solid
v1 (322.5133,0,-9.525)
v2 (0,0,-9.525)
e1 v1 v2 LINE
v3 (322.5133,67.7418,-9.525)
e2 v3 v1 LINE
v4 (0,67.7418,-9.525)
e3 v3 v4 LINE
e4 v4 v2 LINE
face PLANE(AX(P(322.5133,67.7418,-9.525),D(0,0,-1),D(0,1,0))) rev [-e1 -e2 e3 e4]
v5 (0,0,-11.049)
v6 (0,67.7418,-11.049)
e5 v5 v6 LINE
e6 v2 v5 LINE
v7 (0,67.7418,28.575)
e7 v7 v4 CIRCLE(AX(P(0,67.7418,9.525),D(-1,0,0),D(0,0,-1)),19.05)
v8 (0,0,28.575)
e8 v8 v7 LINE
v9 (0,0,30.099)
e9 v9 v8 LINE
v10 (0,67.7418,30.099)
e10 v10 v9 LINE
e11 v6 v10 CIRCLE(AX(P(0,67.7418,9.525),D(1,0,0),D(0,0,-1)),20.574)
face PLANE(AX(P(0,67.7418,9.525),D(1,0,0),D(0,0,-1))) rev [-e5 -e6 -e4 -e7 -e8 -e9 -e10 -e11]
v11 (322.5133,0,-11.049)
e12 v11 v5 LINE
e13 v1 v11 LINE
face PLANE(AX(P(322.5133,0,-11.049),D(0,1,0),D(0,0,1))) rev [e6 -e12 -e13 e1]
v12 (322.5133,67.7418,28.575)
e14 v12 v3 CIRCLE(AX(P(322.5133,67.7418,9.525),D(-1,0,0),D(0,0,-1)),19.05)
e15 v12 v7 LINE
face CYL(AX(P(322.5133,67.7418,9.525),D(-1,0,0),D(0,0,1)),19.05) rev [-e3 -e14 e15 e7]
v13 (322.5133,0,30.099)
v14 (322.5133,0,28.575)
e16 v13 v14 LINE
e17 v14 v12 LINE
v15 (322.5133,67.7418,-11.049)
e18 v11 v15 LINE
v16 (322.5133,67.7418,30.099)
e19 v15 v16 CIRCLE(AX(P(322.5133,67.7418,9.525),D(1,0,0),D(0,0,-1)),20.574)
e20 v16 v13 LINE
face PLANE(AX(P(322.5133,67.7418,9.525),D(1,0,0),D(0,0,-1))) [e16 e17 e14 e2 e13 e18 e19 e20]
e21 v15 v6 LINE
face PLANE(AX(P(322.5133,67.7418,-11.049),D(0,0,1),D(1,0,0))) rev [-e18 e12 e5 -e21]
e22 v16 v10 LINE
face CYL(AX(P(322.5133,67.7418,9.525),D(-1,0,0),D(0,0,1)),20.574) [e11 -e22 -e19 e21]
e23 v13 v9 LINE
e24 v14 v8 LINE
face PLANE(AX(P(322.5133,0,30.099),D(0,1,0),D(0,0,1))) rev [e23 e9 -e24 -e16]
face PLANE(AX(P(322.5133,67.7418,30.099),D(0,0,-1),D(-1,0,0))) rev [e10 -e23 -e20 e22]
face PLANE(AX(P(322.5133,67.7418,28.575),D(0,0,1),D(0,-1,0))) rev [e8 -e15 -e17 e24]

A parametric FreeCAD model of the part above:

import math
import FreeCAD as App
import Part
import Sketcher
from FreeCAD import Vector
Q = App.Units.Quantity

doc = App.newDocument("Part")
body = doc.addObject("PartDesign::Body", "Body")

# Sketch on YZ plane
sketch1 = body.newObject("Sketcher::SketchObject", "Sketch")
sketch1.AttachmentSupport = (doc.getObject("YZ_Plane"), [""])
sketch1.MapMode = "FlatFace"
sketch1.addGeometry(Part.LineSegment(Vector(67.7, 30.1, 0), Vector(0, 30.1, 0)), False)
sketch1.addGeometry(Part.LineSegment(Vector(0, 30.1, 0), Vector(0, 28.6, 0)), False)
sketch1.addGeometry(Part.LineSegment(Vector(0, 28.6, 0), Vector(67.7, 28.6, 0)), False)
sketch1.addGeometry(Part.ArcOfCircle(Part.Circle(Vector(67.7, 9.5, 0), Vector(0, 0, 1), 19.1), math.radians(-90), math.radians(90)), False)
sketch1.addGeometry(Part.LineSegment(Vector(67.7, -9.5, 0), Vector(0, -9.5, 0)), False)
sketch1.addGeometry(Part.LineSegment(Vector(0, -9.5, 0), Vector(0, -11, 0)), False)
sketch1.addGeometry(Part.LineSegment(Vector(0, -11, 0), Vector(67.7, -11, 0)), False)
sketch1.addGeometry(Part.ArcOfCircle(Part.Circle(Vector(67.7, 9.5, 0), Vector(0, 0, 1), 20.6), math.radians(-90), math.radians(90)), False)
sketch1.addConstraint(Sketcher.Constraint("Coincident", 0, 2, 1, 1))
sketch1.addConstraint(Sketcher.Constraint("Coincident", 1, 2, 2, 1))
sketch1.addConstraint(Sketcher.Constraint("Tangent", 2, 2, 3, 2))
sketch1.addConstraint(Sketcher.Constraint("Tangent", 3, 1, 4, 1))
sketch1.addConstraint(Sketcher.Constraint("Coincident", 4, 2, 5, 1))
sketch1.addConstraint(Sketcher.Constraint("Coincident", 5, 2, 6, 1))
sketch1.addConstraint(Sketcher.Constraint("Tangent", 6, 2, 7, 1))
sketch1.addConstraint(Sketcher.Constraint("Tangent", 7, 2, 0, 1))
sketch1.addConstraint(Sketcher.Constraint("Horizontal", 0))
sketch1.addConstraint(Sketcher.Constraint("Vertical", 1))
sketch1.addConstraint(Sketcher.Constraint("Horizontal", 2))
sketch1.addConstraint(Sketcher.Constraint("Horizontal", 4))
sketch1.addConstraint(Sketcher.Constraint("Vertical", 5))
sketch1.addConstraint(Sketcher.Constraint("Horizontal", 6))
sketch1.addConstraint(Sketcher.Constraint("Coincident", 7, 3, 3, 3))
sketch1.addConstraint(Sketcher.Constraint("PointOnObject", 0, 2, -2))
sketch1.addConstraint(Sketcher.Constraint("PointOnObject", 4, 2, -2))
sketch1.addConstraint(Sketcher.Constraint("Radius", 3, Q("0.75 in")))
sketch1.addConstraint(Sketcher.Constraint("Radius", 7, Q("0.81 in")))
sketch1.addConstraint(Sketcher.Constraint("DistanceX", 0, 2, 0, 1, Q("2.667 in")))
sketch1.addConstraint(Sketcher.Constraint("DistanceY", -1, 1, 3, 3, Q("0.375 in")))
pad1 = body.newObject("PartDesign::Pad", "Pad")
pad1.Profile = sketch1
pad1.Length = 322.5133

doc.recompute()
